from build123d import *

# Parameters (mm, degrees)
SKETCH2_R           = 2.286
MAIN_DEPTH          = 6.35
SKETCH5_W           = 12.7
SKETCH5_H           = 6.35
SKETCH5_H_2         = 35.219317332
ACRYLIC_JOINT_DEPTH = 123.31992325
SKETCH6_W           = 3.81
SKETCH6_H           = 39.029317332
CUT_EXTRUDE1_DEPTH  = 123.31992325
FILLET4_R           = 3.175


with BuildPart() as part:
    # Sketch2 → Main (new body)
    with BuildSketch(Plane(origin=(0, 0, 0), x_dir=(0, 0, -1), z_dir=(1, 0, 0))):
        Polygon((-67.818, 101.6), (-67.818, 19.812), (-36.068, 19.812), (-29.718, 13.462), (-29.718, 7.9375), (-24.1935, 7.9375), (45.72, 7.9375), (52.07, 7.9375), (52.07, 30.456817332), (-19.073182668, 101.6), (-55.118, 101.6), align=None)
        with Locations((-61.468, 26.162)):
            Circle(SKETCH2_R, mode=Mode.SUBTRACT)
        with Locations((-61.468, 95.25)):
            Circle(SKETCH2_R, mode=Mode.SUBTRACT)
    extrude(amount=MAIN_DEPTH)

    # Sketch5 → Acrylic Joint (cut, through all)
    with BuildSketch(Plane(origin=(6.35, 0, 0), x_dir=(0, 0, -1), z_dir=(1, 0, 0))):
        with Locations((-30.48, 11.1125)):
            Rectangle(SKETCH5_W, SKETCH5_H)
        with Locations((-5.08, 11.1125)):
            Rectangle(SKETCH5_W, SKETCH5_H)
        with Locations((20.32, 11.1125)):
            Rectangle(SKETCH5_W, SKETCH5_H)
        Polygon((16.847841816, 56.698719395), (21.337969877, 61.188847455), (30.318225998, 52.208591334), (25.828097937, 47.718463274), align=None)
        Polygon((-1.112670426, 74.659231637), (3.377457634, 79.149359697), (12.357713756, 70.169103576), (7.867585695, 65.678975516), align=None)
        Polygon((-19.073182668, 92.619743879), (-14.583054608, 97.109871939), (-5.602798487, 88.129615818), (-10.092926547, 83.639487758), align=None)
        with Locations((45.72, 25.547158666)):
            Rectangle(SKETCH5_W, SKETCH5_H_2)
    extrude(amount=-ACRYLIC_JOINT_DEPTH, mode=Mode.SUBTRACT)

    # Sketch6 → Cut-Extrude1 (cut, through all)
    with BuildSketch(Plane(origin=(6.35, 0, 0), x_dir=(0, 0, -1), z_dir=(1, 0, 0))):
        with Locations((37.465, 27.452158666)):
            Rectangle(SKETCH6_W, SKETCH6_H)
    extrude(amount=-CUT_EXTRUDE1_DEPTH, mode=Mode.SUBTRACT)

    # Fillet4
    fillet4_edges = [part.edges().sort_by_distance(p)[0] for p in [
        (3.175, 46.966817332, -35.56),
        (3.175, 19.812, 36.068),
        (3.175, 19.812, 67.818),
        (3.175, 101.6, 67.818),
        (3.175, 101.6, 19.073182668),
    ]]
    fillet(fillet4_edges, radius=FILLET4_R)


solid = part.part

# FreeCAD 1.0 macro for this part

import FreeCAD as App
import Part
import Sketcher
Q = App.Units.Quantity


def edges_at(feature, points):
    """Names of the edges that pass closest to the given points."""
    edges = feature.Shape.Edges
    near = lambda p: min(range(len(edges)), key=lambda i: edges[i].distToShape(Part.Vertex(*p))[0])
    return sorted({f"Edge{near(p) + 1}" for p in points})


def add_polygon(sketch, points):
    """Adds a closed chain of lines whose ends are joined by coincident constraints."""
    first, n = sketch.GeometryCount, len(points)
    for a, b in zip(points, points[1:] + points[:1]):
        sketch.addGeometry(Part.LineSegment(App.Vector(*a, 0), App.Vector(*b, 0)), False)
    for i in range(n):
        sketch.addConstraint(Sketcher.Constraint("Coincident", first + i, 2, first + (i + 1) % n, 1))

doc = App.newDocument("Part")
body = doc.addObject("PartDesign::Body", "Body")

# Sketch on YZ plane
sketch1 = body.newObject("Sketcher::SketchObject", "Sketch")
sketch1.AttachmentSupport = (doc.getObject("YZ_Plane"), [""])
sketch1.MapMode = "FlatFace"
add_polygon(sketch1, [(101.6, 67.8), (19.8, 67.8), (19.8, 36.1), (13.5, 29.7), (7.9, 29.7), (7.9, -52.1), (30.5, -52.1), (101.6, 19.1)])  # lines 0-7
sketch1.addGeometry(Part.Circle(App.Vector(26.2, 61.5, 0), App.Vector(0, 0, 1), 2.3), False)  # 8
sketch1.addGeometry(Part.Circle(App.Vector(95.2, 61.5, 0), App.Vector(0, 0, 1), 2.3), False)  # 9
sketch1.addConstraint(Sketcher.Constraint("Horizontal", 0))
sketch1.addConstraint(Sketcher.Constraint("Vertical", 1))
sketch1.addConstraint(Sketcher.Constraint("Horizontal", 3))
sketch1.addConstraint(Sketcher.Constraint("Vertical", 4))
sketch1.addConstraint(Sketcher.Constraint("Horizontal", 5))
sketch1.addConstraint(Sketcher.Constraint("Vertical", 7))
sketch1.addConstraint(Sketcher.Constraint("Equal", 8, 9))
sketch1.addConstraint(Sketcher.Constraint("Parallel", 2, 6))
sketch1.addConstraint(Sketcher.Constraint("Horizontal", 8, 3, 9, 3))
sketch1.addConstraint(Sketcher.Constraint("Equal", 0, 4))
sketch1.addConstraint(Sketcher.Constraint("Diameter", 8, Q("0.18 in")))
sketch1.addConstraint(Sketcher.Constraint("DistanceX", -1, 1, 6, 2, Q("4 in")))
sketch1.addConstraint(Sketcher.Constraint("Angle", 2, Q("-135 deg")))
sketch1.addConstraint(Sketcher.Constraint("DistanceY", 1, 2, 8, 3, Q("1 in")))
sketch1.addConstraint(Sketcher.Constraint("DistanceX", 0, 2, 0, 1, Q("3.22 in")))
sketch1.addConstraint(Sketcher.Constraint("DistanceY", 1, 2, 1, 1, Q("1.25 in")))
sketch1.addConstraint(Sketcher.Constraint("DistanceX", 2, 2, 8, 3, Q("0.5 in")))
sketch1.addConstraint(Sketcher.Constraint("DistanceY", 2, 2, 0, 2, Q("1.5 in")))
sketch1.addConstraint(Sketcher.Constraint("DistanceY", -1, 1, 8, 3, Q("2.42 in")))
sketch1.addConstraint(Sketcher.Constraint("DistanceX", -1, 1, 9, 3, Q("3.75 in")))
sketch1.addConstraint(Sketcher.Constraint("DistanceX", 3, 2, 3, 1, Q("0.2175 in")))
sketch1.addConstraint(Sketcher.Constraint("DistanceX", 5, 1, 5, 2, 22.519317))
pad1 = body.newObject("PartDesign::Pad", "Pad")
pad1.Profile = sketch1
pad1.Length = Q("0.25 in")

# Sketch on YZ plane
sketch2 = body.newObject("Sketcher::SketchObject", "Sketch001")
sketch2.AttachmentSupport = (doc.getObject("YZ_Plane"), [""])
sketch2.MapMode = "FlatFace"
sketch2.AttachmentOffset = App.Placement(App.Vector(0, 0, 0.25 * 25.4), App.Rotation())
add_polygon(sketch2, [(14, 37), (8, 37), (8, 24), (14, 24)])  # lines 0-3
add_polygon(sketch2, [(14, 11), (8, 11), (8, -1), (14, -1)])  # lines 4-7
add_polygon(sketch2, [(14, -14), (8, -14), (8, -27), (14, -27)])  # lines 8-11
add_polygon(sketch2, [(61, -21), (57, -17), (48, -26), (52, -30)])  # lines 12-15
add_polygon(sketch2, [(79, -3), (75, 1), (66, -8), (70, -12)])  # lines 16-19
add_polygon(sketch2, [(97, 15), (93, 19), (84, 10), (88, 6)])  # lines 20-23
add_polygon(sketch2, [(43, -39), (8, -39), (8, -52), (43, -52)])  # lines 24-27
sketch2.addConstraint(Sketcher.Constraint("Horizontal", 0))
sketch2.addConstraint(Sketcher.Constraint("Vertical", 1))
sketch2.addConstraint(Sketcher.Constraint("Horizontal", 2))
sketch2.addConstraint(Sketcher.Constraint("Vertical", 3))
sketch2.addConstraint(Sketcher.Constraint("Horizontal", 4))
sketch2.addConstraint(Sketcher.Constraint("Vertical", 5))
sketch2.addConstraint(Sketcher.Constraint("Horizontal", 6))
sketch2.addConstraint(Sketcher.Constraint("Vertical", 7))
sketch2.addConstraint(Sketcher.Constraint("Horizontal", 8))
sketch2.addConstraint(Sketcher.Constraint("Vertical", 9))
sketch2.addConstraint(Sketcher.Constraint("Horizontal", 10))
sketch2.addConstraint(Sketcher.Constraint("Vertical", 11))
sketch2.addConstraint(Sketcher.Constraint("Horizontal", 24))
sketch2.addConstraint(Sketcher.Constraint("Vertical", 25))
sketch2.addConstraint(Sketcher.Constraint("Horizontal", 26))
sketch2.addConstraint(Sketcher.Constraint("Vertical", 27))
sketch2.addConstraint(Sketcher.Constraint("Perpendicular", 12, 13))
sketch2.addConstraint(Sketcher.Constraint("Perpendicular", 13, 14))
sketch2.addConstraint(Sketcher.Constraint("Perpendicular", 14, 15))
sketch2.addConstraint(Sketcher.Constraint("Perpendicular", 15, 16))
sketch2.addConstraint(Sketcher.Constraint("Perpendicular", 16, 17))
sketch2.addConstraint(Sketcher.Constraint("Perpendicular", 17, 18))
sketch2.addConstraint(Sketcher.Constraint("Perpendicular", 18, 19))
sketch2.addConstraint(Sketcher.Constraint("Perpendicular", 19, 20))
sketch2.addConstraint(Sketcher.Constraint("Perpendicular", 20, 21))
sketch2.addConstraint(Sketcher.Constraint("Perpendicular", 21, 22))
sketch2.addConstraint(Sketcher.Constraint("Perpendicular", 22, 23))
sketch2.addConstraint(Sketcher.Constraint("Vertical", 1, 2, 4, 2))
sketch2.addConstraint(Sketcher.Constraint("Vertical", 3, 2, 6, 2))
sketch2.addConstraint(Sketcher.Constraint("Vertical", 5, 2, 8, 2))
sketch2.addConstraint(Sketcher.Constraint("Vertical", 7, 2, 10, 2))
sketch2.addConstraint(Sketcher.Constraint("Vertical", 9, 2, 24, 2))
sketch2.addConstraint(Sketcher.Constraint("Equal", 3, 5))
sketch2.addConstraint(Sketcher.Constraint("Equal", 7, 9))
sketch2.addConstraint(Sketcher.Constraint("Equal", 11, 25))
sketch2.addConstraint(Sketcher.Constraint("Equal", 14, 16))
sketch2.addConstraint(Sketcher.Constraint("Equal", 15, 17))
sketch2.addConstraint(Sketcher.Constraint("Equal", 18, 20))
sketch2.addConstraint(Sketcher.Constraint("Equal", 19, 21))
sketch2.addConstraint(Sketcher.Constraint("DistanceY", 1, 2, 1, 1, Q("0.5 in")))
sketch2.addConstraint(Sketcher.Constraint("Angle", 12, Q("135 deg")))
sketch2.addConstraint(Sketcher.Constraint("DistanceY", 4, 2, 0, 2, Q("1 in")))
sketch2.addConstraint(Sketcher.Constraint("DistanceY", 8, 2, 4, 2, Q("1 in")))
sketch2.addConstraint(Sketcher.Constraint("DistanceY", 24, 2, 8, 2, Q("1 in")))
sketch2.addConstraint(Sketcher.Constraint("Distance", 13, Q("0.5 in")))
sketch2.addConstraint(Sketcher.Constraint("DistanceX", 0, 2, 0, 1, Q("0.25 in")))
sketch2.addConstraint(Sketcher.Constraint("Distance", 12, Q("0.25 in")))
sketch2.addConstraint(Sketcher.Constraint("DistanceY", -1, 1, 0, 2, Q("1.45 in")))
sketch2.addConstraint(Sketcher.Constraint("DistanceX", -1, 1, 0, 2, Q("0.3125 in")))
sketch2.addConstraint(Sketcher.Constraint("DistanceY", -1, 1, 22, 2, 5.602798))
sketch2.addConstraint(Sketcher.Constraint("DistanceX", 24, 2, 24, 1, 35.219317))
sketch2.addConstraint(Sketcher.Constraint("DistanceX", -1, 1, 12, 2, 56.698719))
sketch2.addConstraint(Sketcher.Constraint("DistanceY", 12, 2, -1, 1, 16.847842))
sketch2.addConstraint(Sketcher.Constraint("DistanceX", -1, 1, 16, 2, 74.659232))
sketch2.addConstraint(Sketcher.Constraint("DistanceY", -1, 1, 16, 2, 1.11267))
sketch2.addConstraint(Sketcher.Constraint("DistanceX", -1, 1, 23, 2, 97.109872))
pocket1 = body.newObject("PartDesign::Pocket", "Pocket")
pocket1.Profile = sketch2
pocket1.Type = "ThroughAll"

# Sketch on YZ plane
sketch3 = body.newObject("Sketcher::SketchObject", "Sketch002")
sketch3.AttachmentSupport = (doc.getObject("YZ_Plane"), [""])
sketch3.MapMode = "FlatFace"
sketch3.AttachmentOffset = App.Placement(App.Vector(0, 0, 0.25 * 25.4), App.Rotation())
add_polygon(sketch3, [(47, -35.6), (7.9, -35.6), (7.9, -39.4), (47, -39.4)])  # lines 0-3
sketch3.addConstraint(Sketcher.Constraint("Horizontal", 0))
sketch3.addConstraint(Sketcher.Constraint("Vertical", 1))
sketch3.addConstraint(Sketcher.Constraint("Horizontal", 2))
sketch3.addConstraint(Sketcher.Constraint("Vertical", 3))
sketch3.addConstraint(Sketcher.Constraint("DistanceY", 1, 2, 1, 1, Q("0.15 in")))
sketch3.addConstraint(Sketcher.Constraint("DistanceY", 0, 2, -1, 1, Q("1.4 in")))
sketch3.addConstraint(Sketcher.Constraint("DistanceX", -1, 1, 0, 2, Q("0.3125 in")))
sketch3.addConstraint(Sketcher.Constraint("DistanceX", 0, 2, 0, 1, 39.029317))
pocket2 = body.newObject("PartDesign::Pocket", "Pocket001")
pocket2.Profile = sketch3
pocket2.Type = "ThroughAll"
doc.recompute()

fillet = body.newObject("PartDesign::Fillet", "Fillet")
fillet.Base = (pocket2, edges_at(pocket2, [
    (3.175, 46.967, -35.56),
    (3.175, 19.812, 36.068),
    (3.175, 19.812, 67.818),
    (3.175, 101.6, 67.818),
    (3.175, 101.6, 19.073),
]))
fillet.Radius = Q("0.125 in")

doc.recompute()
